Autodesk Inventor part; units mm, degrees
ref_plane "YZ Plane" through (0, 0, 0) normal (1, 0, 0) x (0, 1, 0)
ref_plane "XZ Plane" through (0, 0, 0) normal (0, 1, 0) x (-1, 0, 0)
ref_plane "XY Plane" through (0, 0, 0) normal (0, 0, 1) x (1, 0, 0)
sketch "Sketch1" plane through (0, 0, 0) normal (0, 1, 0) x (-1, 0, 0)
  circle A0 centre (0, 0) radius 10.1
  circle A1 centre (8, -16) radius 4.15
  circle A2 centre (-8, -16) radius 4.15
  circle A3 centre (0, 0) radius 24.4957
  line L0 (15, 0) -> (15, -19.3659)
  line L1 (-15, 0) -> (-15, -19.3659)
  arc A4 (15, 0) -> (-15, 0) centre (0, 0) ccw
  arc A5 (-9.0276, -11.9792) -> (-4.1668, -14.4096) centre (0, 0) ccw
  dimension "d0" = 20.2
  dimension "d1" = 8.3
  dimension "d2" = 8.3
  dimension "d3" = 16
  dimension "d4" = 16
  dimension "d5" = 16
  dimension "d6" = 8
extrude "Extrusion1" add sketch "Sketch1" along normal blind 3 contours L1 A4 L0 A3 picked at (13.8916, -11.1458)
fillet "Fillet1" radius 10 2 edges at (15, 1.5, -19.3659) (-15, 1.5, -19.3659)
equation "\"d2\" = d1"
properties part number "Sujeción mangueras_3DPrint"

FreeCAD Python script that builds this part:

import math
import FreeCAD as App
import Part
import Sketcher
from FreeCAD import Vector


def edges_at(feature, points):
    """Names of the edges that pass closest to the given points."""
    edges = feature.Shape.Edges
    near = lambda p: min(range(len(edges)), key=lambda i: edges[i].distToShape(Part.Vertex(*p))[0])
    return sorted({f"Edge{near(p) + 1}" for p in points})

doc = App.newDocument("Part")
body = doc.addObject("PartDesign::Body", "Body")

# Sketch on XZ plane
sketch1 = body.newObject("Sketcher::SketchObject", "Sketch")
sketch1.AttachmentSupport = (doc.getObject("XZ_Plane"), [""])
sketch1.MapMode = "FlatFace"
sketch1.addGeometry([
    Part.LineSegment(Vector(15, 0, 0), Vector(15, -19.3659, 0)),  # 0
    Part.ArcOfCircle(Part.Circle(Vector(0, 0, 0), Vector(0, 0, 1), 24.4957), math.radians(-127.759836), math.radians(-52.240164)),  # 1
    Part.LineSegment(Vector(-15, -19.3659, 0), Vector(-15, 0, 0)),  # 2
    Part.ArcOfCircle(Part.Circle(Vector(0, 0, 0), Vector(0, 0, 1), 15), math.radians(0), math.radians(180)),  # 3
    Part.Circle(Vector(8, -16, 0), Vector(0, 0, 1), 4.15),  # 4
    Part.Circle(Vector(-8, -16, 0), Vector(0, 0, 1), 4.15),  # 5
    Part.Circle(Vector(0, 0, 0), Vector(0, 0, 1), 10.1),  # 6
], False)
sketch1.addConstraint([
    Sketcher.Constraint("Coincident", 0, 2, 1, 2),
    Sketcher.Constraint("Coincident", 1, 1, 2, 1),
    Sketcher.Constraint("Tangent", 2, 2, 3, 2),
    Sketcher.Constraint("Tangent", 3, 1, 0, 1),
    Sketcher.Constraint("Vertical", 0),
    Sketcher.Constraint("Vertical", 2),
    Sketcher.Constraint("Coincident", 1, 3, -1, 1),
    Sketcher.Constraint("Coincident", 3, 3, -1, 1),
    Sketcher.Constraint("Coincident", 6, 3, -1, 1),
    Sketcher.Constraint("Equal", 4, 5),
    Sketcher.Constraint("Symmetric", 4, 3, 5, 3, -2),
    Sketcher.Constraint("Diameter", 4, 8.3),
    Sketcher.Constraint("Diameter", 6, 20.2),
    Sketcher.Constraint("DistanceX", -1, 1, 4, 3, 8.0),
    Sketcher.Constraint("DistanceY", 4, 3, -1, 1, 16.0),
    Sketcher.Constraint("Radius", 3, 15.0),
    Sketcher.Constraint("Radius", 1, 24.4957),
])
pad1 = body.newObject("PartDesign::Pad", "Pad")
pad1.Profile = sketch1
pad1.Length = 3
pad1.Reversed = True
doc.recompute()

fillet = body.newObject("PartDesign::Fillet", "Fillet")
fillet.Base = (pad1, edges_at(pad1, [(15, 1.5, -19.366), (-15, 1.5, -19.366)]))
fillet.Radius = 10

doc.recompute()
